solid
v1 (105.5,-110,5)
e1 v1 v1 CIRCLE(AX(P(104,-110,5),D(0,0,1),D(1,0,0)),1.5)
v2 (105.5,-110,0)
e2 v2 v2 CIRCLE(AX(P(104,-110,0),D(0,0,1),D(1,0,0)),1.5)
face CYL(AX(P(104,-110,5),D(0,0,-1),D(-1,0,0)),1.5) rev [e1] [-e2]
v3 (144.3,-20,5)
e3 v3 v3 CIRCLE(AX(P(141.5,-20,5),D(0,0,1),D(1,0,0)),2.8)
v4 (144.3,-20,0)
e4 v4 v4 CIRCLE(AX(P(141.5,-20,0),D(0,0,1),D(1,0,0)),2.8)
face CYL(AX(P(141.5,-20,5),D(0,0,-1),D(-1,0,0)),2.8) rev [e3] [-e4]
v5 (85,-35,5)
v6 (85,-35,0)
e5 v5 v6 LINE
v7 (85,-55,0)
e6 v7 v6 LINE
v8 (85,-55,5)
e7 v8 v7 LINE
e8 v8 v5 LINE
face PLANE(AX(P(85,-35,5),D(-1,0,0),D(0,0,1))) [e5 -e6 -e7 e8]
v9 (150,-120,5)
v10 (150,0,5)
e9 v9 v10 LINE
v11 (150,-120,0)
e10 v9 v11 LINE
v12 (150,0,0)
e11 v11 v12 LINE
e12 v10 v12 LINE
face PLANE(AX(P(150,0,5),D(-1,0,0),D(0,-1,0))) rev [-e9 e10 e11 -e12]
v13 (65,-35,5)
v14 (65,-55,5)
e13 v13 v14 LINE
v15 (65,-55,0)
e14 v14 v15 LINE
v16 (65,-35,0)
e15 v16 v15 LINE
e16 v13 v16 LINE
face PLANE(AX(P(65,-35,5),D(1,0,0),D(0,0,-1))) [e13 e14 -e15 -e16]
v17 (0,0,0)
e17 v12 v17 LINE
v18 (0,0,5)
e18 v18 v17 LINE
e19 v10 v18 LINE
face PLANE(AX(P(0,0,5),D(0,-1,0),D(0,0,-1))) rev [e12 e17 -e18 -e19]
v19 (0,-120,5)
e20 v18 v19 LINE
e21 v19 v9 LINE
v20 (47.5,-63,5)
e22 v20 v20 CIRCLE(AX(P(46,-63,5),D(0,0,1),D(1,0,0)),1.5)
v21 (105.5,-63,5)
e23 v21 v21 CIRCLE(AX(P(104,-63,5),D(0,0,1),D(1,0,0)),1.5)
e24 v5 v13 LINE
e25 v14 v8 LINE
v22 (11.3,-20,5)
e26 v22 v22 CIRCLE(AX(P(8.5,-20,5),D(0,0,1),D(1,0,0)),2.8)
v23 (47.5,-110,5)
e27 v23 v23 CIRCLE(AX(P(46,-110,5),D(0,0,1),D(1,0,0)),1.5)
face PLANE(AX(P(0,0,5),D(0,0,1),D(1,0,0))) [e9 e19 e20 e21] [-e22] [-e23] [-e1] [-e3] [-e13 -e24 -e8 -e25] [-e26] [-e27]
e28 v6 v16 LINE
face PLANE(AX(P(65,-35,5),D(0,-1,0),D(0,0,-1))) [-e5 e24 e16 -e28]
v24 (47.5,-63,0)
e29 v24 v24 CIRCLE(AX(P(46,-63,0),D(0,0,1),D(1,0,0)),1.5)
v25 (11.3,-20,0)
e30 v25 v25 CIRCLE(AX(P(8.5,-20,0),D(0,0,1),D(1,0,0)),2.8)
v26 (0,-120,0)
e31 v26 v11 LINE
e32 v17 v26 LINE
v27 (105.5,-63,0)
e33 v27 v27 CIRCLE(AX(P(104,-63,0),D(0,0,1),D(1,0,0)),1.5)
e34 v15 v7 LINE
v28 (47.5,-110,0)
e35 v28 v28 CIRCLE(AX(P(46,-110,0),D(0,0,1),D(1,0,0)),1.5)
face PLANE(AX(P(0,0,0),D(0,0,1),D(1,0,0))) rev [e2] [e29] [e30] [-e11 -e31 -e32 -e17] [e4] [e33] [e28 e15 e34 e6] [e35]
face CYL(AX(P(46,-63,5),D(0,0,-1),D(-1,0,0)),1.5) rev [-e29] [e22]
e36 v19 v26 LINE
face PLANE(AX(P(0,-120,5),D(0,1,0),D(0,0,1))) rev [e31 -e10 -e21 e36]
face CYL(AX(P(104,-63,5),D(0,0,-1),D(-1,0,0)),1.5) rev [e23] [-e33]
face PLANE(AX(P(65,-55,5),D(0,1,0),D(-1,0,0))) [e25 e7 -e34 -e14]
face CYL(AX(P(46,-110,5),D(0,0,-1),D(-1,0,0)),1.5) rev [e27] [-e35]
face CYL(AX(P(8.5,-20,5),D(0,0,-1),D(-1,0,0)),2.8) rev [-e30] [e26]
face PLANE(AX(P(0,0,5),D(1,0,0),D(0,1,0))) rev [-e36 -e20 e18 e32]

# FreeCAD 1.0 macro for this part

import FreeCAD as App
import Part
import Sketcher

V = App.Vector
Q = App.Units.Quantity

doc = App.newDocument("Part")
params = doc.addObject("Spreadsheet::Sheet", "Params")
for row, (alias, value) in enumerate([
    ("sketch1_diameter", "3 mm"),
    ("sketch1_diameter2", "5.6 mm"),
    ("sketch1_width", "150 mm"),
    ("sketch1_width2", "20 mm"),
    ("sketch1_height", "120 mm"),
    ("pad1_length", "5 mm"),
], start=1):
    params.set(f"A{row}", alias)
    params.set(f"B{row}", "=" + value)
    params.setAlias(f"B{row}", alias)

body = doc.addObject("PartDesign::Body", "Body")

# Sketch on XY plane
sketch1 = body.newObject("Sketcher::SketchObject", "Sketch")
sketch1.AttachmentSupport = (doc.getObject("XY_Plane"), [""])
sketch1.MapMode = "FlatFace"
sketch1.addGeometry(Part.LineSegment(V(0, 0, 0), V(0, -120, 0)), False)
sketch1.addGeometry(Part.LineSegment(V(0, -120, 0), V(150, -120, 0)), False)
sketch1.addGeometry(Part.LineSegment(V(150, -120, 0), V(150, 0, 0)), False)
sketch1.addGeometry(Part.LineSegment(V(150, 0, 0), V(0, 0, 0)), False)
sketch1.addGeometry(Part.Circle(V(46, -110, 0), V(0, 0, 1), 1.5), False)
sketch1.addGeometry(Part.Circle(V(104, -110, 0), V(0, 0, 1), 1.5), False)
sketch1.addGeometry(Part.Circle(V(46, -63, 0), V(0, 0, 1), 1.5), False)
sketch1.addGeometry(Part.Circle(V(8.5, -20, 0), V(0, 0, 1), 2.8), False)
sketch1.addGeometry(Part.Circle(V(104, -63, 0), V(0, 0, 1), 1.5), False)
sketch1.addGeometry(Part.LineSegment(V(85, -55, 0), V(65, -55, 0)), False)
sketch1.addGeometry(Part.LineSegment(V(65, -55, 0), V(65, -35, 0)), False)
sketch1.addGeometry(Part.LineSegment(V(65, -35, 0), V(85, -35, 0)), False)
sketch1.addGeometry(Part.LineSegment(V(85, -35, 0), V(85, -55, 0)), False)
sketch1.addGeometry(Part.Circle(V(141.5, -20, 0), V(0, 0, 1), 2.8), False)
sketch1.addConstraint(Sketcher.Constraint("Coincident", 0, 2, 1, 1))
sketch1.addConstraint(Sketcher.Constraint("Coincident", 1, 2, 2, 1))
sketch1.addConstraint(Sketcher.Constraint("Coincident", 2, 2, 3, 1))
sketch1.addConstraint(Sketcher.Constraint("Coincident", 3, 2, 0, 1))
sketch1.addConstraint(Sketcher.Constraint("Coincident", 9, 2, 10, 1))
sketch1.addConstraint(Sketcher.Constraint("Coincident", 10, 2, 11, 1))
sketch1.addConstraint(Sketcher.Constraint("Coincident", 11, 2, 12, 1))
sketch1.addConstraint(Sketcher.Constraint("Coincident", 12, 2, 9, 1))
sketch1.addConstraint(Sketcher.Constraint("Vertical", 0))
sketch1.addConstraint(Sketcher.Constraint("Horizontal", 1))
sketch1.addConstraint(Sketcher.Constraint("Vertical", 2))
sketch1.addConstraint(Sketcher.Constraint("Horizontal", 3))
sketch1.addConstraint(Sketcher.Constraint("Horizontal", 9))
sketch1.addConstraint(Sketcher.Constraint("Vertical", 10))
sketch1.addConstraint(Sketcher.Constraint("Horizontal", 11))
sketch1.addConstraint(Sketcher.Constraint("Vertical", 12))
sketch1.addConstraint(Sketcher.Constraint("Coincident", 3, 2, -1, 1))
sketch1.addConstraint(Sketcher.Constraint("Equal", 4, 5))
sketch1.addConstraint(Sketcher.Constraint("Equal", 5, 6))
sketch1.addConstraint(Sketcher.Constraint("Equal", 6, 8))
sketch1.addConstraint(Sketcher.Constraint("Equal", 7, 13))
sketch1.addConstraint(Sketcher.Constraint("Horizontal", 4, 3, 5, 3))
sketch1.addConstraint(Sketcher.Constraint("Horizontal", 6, 3, 8, 3))
sketch1.addConstraint(Sketcher.Constraint("Horizontal", 7, 3, 13, 3))
sketch1.addConstraint(Sketcher.Constraint("Vertical", 4, 3, 6, 3))
sketch1.addConstraint(Sketcher.Constraint("Vertical", 5, 3, 8, 3))
sketch1.addConstraint(Sketcher.Constraint("Equal", 11, 10))
sketch1.addConstraint(Sketcher.Constraint("Diameter", 4, Q("3 mm")))
sketch1.addConstraint(Sketcher.Constraint("Diameter", 7, Q("5.6 mm")))
sketch1.addConstraint(Sketcher.Constraint("DistanceX", 1, 1, 1, 2, Q("150 mm")))
sketch1.addConstraint(Sketcher.Constraint("DistanceX", 9, 2, 9, 1, Q("20 mm")))
sketch1.addConstraint(Sketcher.Constraint("DistanceY", 0, 2, 0, 1, Q("120 mm")))
sketch1.addConstraint(Sketcher.Constraint("DistanceX", -1, 1, 4, 3, Q("46 mm")))
sketch1.addConstraint(Sketcher.Constraint("DistanceY", 4, 3, -1, 1, Q("110 mm")))
sketch1.addConstraint(Sketcher.Constraint("DistanceX", -1, 1, 5, 3, Q("104 mm")))
sketch1.addConstraint(Sketcher.Constraint("DistanceY", 6, 3, -1, 1, Q("63 mm")))
sketch1.addConstraint(Sketcher.Constraint("DistanceY", 7, 3, -1, 1, Q("20 mm")))
sketch1.addConstraint(Sketcher.Constraint("DistanceX", -1, 1, 9, 2, Q("65 mm")))
sketch1.addConstraint(Sketcher.Constraint("DistanceY", 9, 2, -1, 1, Q("55 mm")))
sketch1.addConstraint(Sketcher.Constraint("DistanceX", 7, 3, 13, 3, Q("133 mm")))
sketch1.addConstraint(Sketcher.Constraint("DistanceX", -1, 1, 7, 3, Q("8.5 mm")))
sketch1.setExpression("Constraints[27]", "Params.sketch1_diameter")
sketch1.setExpression("Constraints[28]", "Params.sketch1_diameter2")
sketch1.setExpression("Constraints[29]", "Params.sketch1_width")
sketch1.setExpression("Constraints[30]", "Params.sketch1_width2")
sketch1.setExpression("Constraints[31]", "Params.sketch1_height")
pad1 = body.newObject("PartDesign::Pad", "Pad")
pad1.Profile = sketch1
pad1.setExpression("Length", "Params.pad1_length")

doc.recompute()
